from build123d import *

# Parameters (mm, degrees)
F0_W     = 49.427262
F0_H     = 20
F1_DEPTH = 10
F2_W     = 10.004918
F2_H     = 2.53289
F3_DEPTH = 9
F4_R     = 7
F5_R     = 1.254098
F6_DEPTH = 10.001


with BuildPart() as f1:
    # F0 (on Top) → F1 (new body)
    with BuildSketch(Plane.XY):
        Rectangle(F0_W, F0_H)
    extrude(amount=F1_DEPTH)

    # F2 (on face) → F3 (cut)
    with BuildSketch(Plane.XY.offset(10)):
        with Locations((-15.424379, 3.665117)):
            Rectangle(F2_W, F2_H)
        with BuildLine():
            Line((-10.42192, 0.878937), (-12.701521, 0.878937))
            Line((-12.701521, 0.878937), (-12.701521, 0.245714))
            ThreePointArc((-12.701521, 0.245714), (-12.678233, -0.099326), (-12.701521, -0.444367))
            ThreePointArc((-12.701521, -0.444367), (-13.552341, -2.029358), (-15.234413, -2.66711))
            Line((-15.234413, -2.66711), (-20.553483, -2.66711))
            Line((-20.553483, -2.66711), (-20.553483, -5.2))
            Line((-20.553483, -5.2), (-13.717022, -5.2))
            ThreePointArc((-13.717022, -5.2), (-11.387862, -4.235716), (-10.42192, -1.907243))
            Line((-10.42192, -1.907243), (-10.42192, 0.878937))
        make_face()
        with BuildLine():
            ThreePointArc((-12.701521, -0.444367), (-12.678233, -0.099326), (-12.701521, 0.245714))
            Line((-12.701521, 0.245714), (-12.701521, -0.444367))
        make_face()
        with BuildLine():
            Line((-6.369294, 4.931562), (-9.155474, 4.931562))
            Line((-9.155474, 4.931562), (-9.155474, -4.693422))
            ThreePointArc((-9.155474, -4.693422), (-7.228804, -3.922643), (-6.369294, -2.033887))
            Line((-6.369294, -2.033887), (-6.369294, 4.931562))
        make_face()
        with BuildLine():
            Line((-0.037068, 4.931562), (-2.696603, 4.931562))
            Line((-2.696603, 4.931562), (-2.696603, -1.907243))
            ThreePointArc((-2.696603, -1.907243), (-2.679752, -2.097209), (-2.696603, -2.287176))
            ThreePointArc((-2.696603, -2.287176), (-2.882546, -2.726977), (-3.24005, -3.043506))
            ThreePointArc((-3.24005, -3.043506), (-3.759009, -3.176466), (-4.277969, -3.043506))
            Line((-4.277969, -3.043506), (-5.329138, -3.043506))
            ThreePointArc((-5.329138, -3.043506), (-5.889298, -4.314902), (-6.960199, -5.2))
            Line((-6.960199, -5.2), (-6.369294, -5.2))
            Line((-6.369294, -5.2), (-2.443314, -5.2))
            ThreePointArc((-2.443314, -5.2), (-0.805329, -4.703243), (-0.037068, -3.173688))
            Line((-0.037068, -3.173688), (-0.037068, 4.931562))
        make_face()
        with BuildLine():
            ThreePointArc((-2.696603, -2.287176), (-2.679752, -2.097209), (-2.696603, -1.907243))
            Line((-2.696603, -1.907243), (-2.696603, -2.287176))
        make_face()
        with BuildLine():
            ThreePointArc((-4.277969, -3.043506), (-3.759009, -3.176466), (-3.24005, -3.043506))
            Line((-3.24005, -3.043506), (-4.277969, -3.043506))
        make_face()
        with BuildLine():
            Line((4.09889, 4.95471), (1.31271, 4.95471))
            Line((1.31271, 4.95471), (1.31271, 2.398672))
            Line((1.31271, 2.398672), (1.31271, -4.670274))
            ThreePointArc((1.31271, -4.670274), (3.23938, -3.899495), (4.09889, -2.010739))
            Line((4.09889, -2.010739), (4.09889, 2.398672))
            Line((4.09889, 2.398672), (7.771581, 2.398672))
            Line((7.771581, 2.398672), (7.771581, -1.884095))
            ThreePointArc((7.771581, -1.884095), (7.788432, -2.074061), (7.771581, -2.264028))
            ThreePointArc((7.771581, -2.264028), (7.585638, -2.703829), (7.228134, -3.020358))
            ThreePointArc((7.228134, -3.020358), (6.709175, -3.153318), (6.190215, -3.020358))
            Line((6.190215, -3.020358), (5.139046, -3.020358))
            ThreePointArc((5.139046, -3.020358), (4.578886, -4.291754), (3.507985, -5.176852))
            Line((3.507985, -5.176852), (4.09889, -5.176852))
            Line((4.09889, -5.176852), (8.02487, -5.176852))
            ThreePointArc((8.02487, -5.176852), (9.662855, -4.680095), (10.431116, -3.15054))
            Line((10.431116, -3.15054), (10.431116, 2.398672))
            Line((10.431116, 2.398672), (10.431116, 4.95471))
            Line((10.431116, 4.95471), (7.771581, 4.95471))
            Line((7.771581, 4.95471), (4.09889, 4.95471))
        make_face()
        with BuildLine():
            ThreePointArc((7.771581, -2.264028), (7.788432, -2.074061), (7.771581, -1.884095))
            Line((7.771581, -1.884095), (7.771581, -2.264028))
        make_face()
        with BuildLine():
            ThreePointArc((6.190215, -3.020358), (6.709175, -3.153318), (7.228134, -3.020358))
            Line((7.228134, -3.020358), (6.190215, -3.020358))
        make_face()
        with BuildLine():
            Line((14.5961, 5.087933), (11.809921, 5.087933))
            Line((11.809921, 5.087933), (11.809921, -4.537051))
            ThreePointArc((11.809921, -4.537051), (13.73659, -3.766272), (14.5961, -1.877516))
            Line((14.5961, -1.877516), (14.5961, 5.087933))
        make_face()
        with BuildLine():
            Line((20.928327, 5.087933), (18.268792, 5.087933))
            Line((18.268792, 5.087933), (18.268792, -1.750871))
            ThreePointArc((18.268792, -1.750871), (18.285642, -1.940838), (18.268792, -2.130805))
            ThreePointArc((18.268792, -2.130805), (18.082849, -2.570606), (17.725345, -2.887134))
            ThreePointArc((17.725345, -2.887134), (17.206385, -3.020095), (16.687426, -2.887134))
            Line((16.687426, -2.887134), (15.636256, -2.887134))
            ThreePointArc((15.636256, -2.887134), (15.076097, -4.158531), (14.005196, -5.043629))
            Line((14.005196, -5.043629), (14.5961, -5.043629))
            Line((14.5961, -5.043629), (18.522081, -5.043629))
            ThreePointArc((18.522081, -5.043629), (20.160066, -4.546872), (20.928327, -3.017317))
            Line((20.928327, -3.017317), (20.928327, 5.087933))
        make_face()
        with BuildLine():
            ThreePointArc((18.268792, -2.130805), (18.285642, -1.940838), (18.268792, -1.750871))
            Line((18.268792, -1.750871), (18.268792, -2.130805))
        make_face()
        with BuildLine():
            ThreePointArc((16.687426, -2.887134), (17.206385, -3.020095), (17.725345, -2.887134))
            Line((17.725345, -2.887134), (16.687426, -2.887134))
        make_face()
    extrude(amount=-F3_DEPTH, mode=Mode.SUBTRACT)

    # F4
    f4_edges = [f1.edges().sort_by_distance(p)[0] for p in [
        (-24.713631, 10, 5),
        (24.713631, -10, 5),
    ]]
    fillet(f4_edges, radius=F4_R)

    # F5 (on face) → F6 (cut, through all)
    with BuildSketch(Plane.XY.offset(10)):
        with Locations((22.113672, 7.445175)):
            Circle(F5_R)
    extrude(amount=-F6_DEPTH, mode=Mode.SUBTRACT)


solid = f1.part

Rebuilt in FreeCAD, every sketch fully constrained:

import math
import FreeCAD as App
import Part
import Sketcher

V = App.Vector
Q = App.Units.Quantity


def edges_at(feature, points):
    """Names of the edges that pass closest to the given points."""
    edges = feature.Shape.Edges
    near = lambda p: min(range(len(edges)), key=lambda i: edges[i].distToShape(Part.Vertex(*p))[0])
    return sorted({f"Edge{near(p) + 1}" for p in points})

doc = App.newDocument("Part")
body = doc.addObject("PartDesign::Body", "Body")

# Sketch on XY plane
sketch1 = body.newObject("Sketcher::SketchObject", "Sketch")
sketch1.AttachmentSupport = (doc.getObject("XY_Plane"), [""])
sketch1.MapMode = "FlatFace"
sketch1.addGeometry(Part.LineSegment(V(-24.713631, 10, 0), V(-24.713631, -10, 0)), False)
sketch1.addGeometry(Part.LineSegment(V(-24.713631, -10, 0), V(24.713631, -10, 0)), False)
sketch1.addGeometry(Part.LineSegment(V(24.713631, -10, 0), V(24.713631, 10, 0)), False)
sketch1.addGeometry(Part.LineSegment(V(24.713631, 10, 0), V(-24.713631, 10, 0)), False)
sketch1.addConstraint(Sketcher.Constraint("Coincident", 0, 2, 1, 1))
sketch1.addConstraint(Sketcher.Constraint("Coincident", 1, 2, 2, 1))
sketch1.addConstraint(Sketcher.Constraint("Coincident", 2, 2, 3, 1))
sketch1.addConstraint(Sketcher.Constraint("Coincident", 3, 2, 0, 1))
sketch1.addConstraint(Sketcher.Constraint("Vertical", 0))
sketch1.addConstraint(Sketcher.Constraint("Horizontal", 1))
sketch1.addConstraint(Sketcher.Constraint("Vertical", 2))
sketch1.addConstraint(Sketcher.Constraint("Horizontal", 3))
sketch1.addConstraint(Sketcher.Constraint("Symmetric", 0, 2, 2, 2, -1, 1))
sketch1.addConstraint(Sketcher.Constraint("DistanceY", 0, 2, 0, 1, Q("20 mm")))
sketch1.addConstraint(Sketcher.Constraint("DistanceX", 1, 1, 1, 2, Q("49.427262 mm")))
pad1 = body.newObject("PartDesign::Pad", "Pad")
pad1.Profile = sketch1
pad1.Length = 10

# Sketch on XY plane
sketch2 = body.newObject("Sketcher::SketchObject", "Sketch001")
sketch2.AttachmentSupport = (doc.getObject("XY_Plane"), [""])
sketch2.MapMode = "FlatFace"
sketch2.AttachmentOffset = App.Placement(V(0, 0, 10), App.Rotation())
sketch2.addGeometry(Part.LineSegment(V(-20.426838, 4.931562, 0), V(-20.426838, 2.398672, 0)), False)
sketch2.addGeometry(Part.LineSegment(V(-20.426838, 2.398672, 0), V(-10.42192, 2.398672, 0)), False)
sketch2.addGeometry(Part.LineSegment(V(-10.42192, 2.398672, 0), V(-10.42192, 4.931562, 0)), False)
sketch2.addGeometry(Part.LineSegment(V(-10.42192, 4.931562, 0), V(-20.426838, 4.931562, 0)), False)
sketch2.addGeometry(Part.LineSegment(V(-10.42192, 0.878937, 0), V(-12.701521, 0.878937, 0)), False)
sketch2.addGeometry(Part.LineSegment(V(-12.701521, 0.878937, 0), V(-12.701521, -0.444367, 0)), False)
sketch2.addGeometry(Part.ArcOfCircle(Part.Circle(V(-15.246042, -0.099328, 0), V(0, 0, 1), 2.567809), math.radians(-89.740513), math.radians(-7.722254)), False)
sketch2.addGeometry(Part.LineSegment(V(-15.234413, -2.66711, 0), V(-20.553483, -2.66711, 0)), False)
sketch2.addGeometry(Part.LineSegment(V(-20.553483, -2.66711, 0), V(-20.553483, -5.2, 0)), False)
sketch2.addGeometry(Part.LineSegment(V(-20.553483, -5.2, 0), V(-13.717022, -5.2, 0)), False)
sketch2.addGeometry(Part.ArcOfCircle(Part.Circle(V(-13.717022, -1.904897, 0), V(0, 0, 1), 3.295103), math.radians(-90), math.radians(-0.040789)), False)
sketch2.addGeometry(Part.LineSegment(V(-10.42192, -1.907243, 0), V(-10.42192, 0.878937, 0)), False)
sketch2.addGeometry(Part.LineSegment(V(-6.369294, 4.931562, 0), V(-9.155474, 4.931562, 0)), False)
sketch2.addGeometry(Part.LineSegment(V(-9.155474, 4.931562, 0), V(-9.155474, -4.693422, 0)), False)
sketch2.addGeometry(Part.ArcOfCircle(Part.Circle(V(-9.152592, -1.907246, 0), V(0, 0, 1), 2.786178), math.radians(-90.059267), math.radians(-2.605182)), False)
sketch2.addGeometry(Part.LineSegment(V(-6.369294, -2.033887, 0), V(-6.369294, 4.931562, 0)), False)
sketch2.addGeometry(Part.LineSegment(V(-0.037068, 4.931562, 0), V(-2.696603, 4.931562, 0)), False)
sketch2.addGeometry(Part.LineSegment(V(-2.696603, 4.931562, 0), V(-2.696603, -2.287176, 0)), False)
sketch2.addGeometry(Part.ArcOfCircle(Part.Circle(V(-3.75901, -2.09721, 0), V(0, 0, 1), 1.079257), math.radians(-61.25911), math.radians(-10.137769)), False)
sketch2.addGeometry(Part.LineSegment(V(-3.24005, -3.043506, 0), V(-5.329138, -3.043506, 0)), False)
sketch2.addGeometry(Part.ArcOfCircle(Part.Circle(V(-8.293317, -2.496626, 0), V(0, 0, 1), 3.014205), math.radians(-63.750661), math.radians(-10.453308)), False)
sketch2.addGeometry(Part.LineSegment(V(-6.960199, -5.2, 0), V(-2.443314, -5.2, 0)), False)
sketch2.addGeometry(Part.ArcOfCircle(Part.Circle(V(-2.203002, -3.043506, 0), V(0, 0, 1), 2.169843), math.radians(-96.358605), math.radians(-3.439591)), False)
sketch2.addGeometry(Part.LineSegment(V(-0.037068, -3.173688, 0), V(-0.037068, 4.931562, 0)), False)
sketch2.addGeometry(Part.LineSegment(V(1.31271, 4.95471, 0), V(1.31271, -4.670274, 0)), False)
sketch2.addGeometry(Part.ArcOfCircle(Part.Circle(V(1.315592, -1.884098, 0), V(0, 0, 1), 2.786178), math.radians(-90.059267), math.radians(-2.605182)), False)
sketch2.addGeometry(Part.LineSegment(V(4.09889, -2.010739, 0), V(4.09889, 2.398672, 0)), False)
sketch2.addGeometry(Part.LineSegment(V(4.09889, 2.398672, 0), V(7.771581, 2.398672, 0)), False)
sketch2.addGeometry(Part.LineSegment(V(7.771581, 2.398672, 0), V(7.771581, -2.264028, 0)), False)
sketch2.addGeometry(Part.ArcOfCircle(Part.Circle(V(6.709174, -2.074062, 0), V(0, 0, 1), 1.079257), math.radians(-61.25911), math.radians(-10.137769)), False)
sketch2.addGeometry(Part.LineSegment(V(7.228134, -3.020358, 0), V(5.139046, -3.020358, 0)), False)
sketch2.addGeometry(Part.ArcOfCircle(Part.Circle(V(2.174867, -2.473478, 0), V(0, 0, 1), 3.014205), math.radians(-63.750661), math.radians(-10.453308)), False)
sketch2.addGeometry(Part.LineSegment(V(3.507985, -5.176852, 0), V(8.02487, -5.176852, 0)), False)
sketch2.addGeometry(Part.ArcOfCircle(Part.Circle(V(8.265182, -3.020358, 0), V(0, 0, 1), 2.169843), math.radians(-96.358605), math.radians(-3.439591)), False)
sketch2.addGeometry(Part.LineSegment(V(10.431116, -3.15054, 0), V(10.431116, 4.95471, 0)), False)
sketch2.addGeometry(Part.LineSegment(V(10.431116, 4.95471, 0), V(1.31271, 4.95471, 0)), False)
sketch2.addGeometry(Part.LineSegment(V(14.5961, 5.087933, 0), V(11.809921, 5.087933, 0)), False)
sketch2.addGeometry(Part.LineSegment(V(11.809921, 5.087933, 0), V(11.809921, -4.537051, 0)), False)
sketch2.addGeometry(Part.ArcOfCircle(Part.Circle(V(11.812802, -1.750875, 0), V(0, 0, 1), 2.786178), math.radians(-90.059247), math.radians(-2.605182)), False)
sketch2.addGeometry(Part.LineSegment(V(14.5961, -1.877516, 0), V(14.5961, 5.087933, 0)), False)
sketch2.addGeometry(Part.LineSegment(V(20.928327, 5.087933, 0), V(18.268792, 5.087933, 0)), False)
sketch2.addGeometry(Part.LineSegment(V(18.268792, 5.087933, 0), V(18.268792, -2.130805, 0)), False)
sketch2.addGeometry(Part.ArcOfCircle(Part.Circle(V(17.206389, -1.940841, 0), V(0, 0, 1), 1.079253), math.radians(-61.259236), math.radians(-10.137715)), False)
sketch2.addGeometry(Part.LineSegment(V(17.725345, -2.887134, 0), V(15.636256, -2.887134, 0)), False)
sketch2.addGeometry(Part.ArcOfCircle(Part.Circle(V(12.672082, -2.34026, 0), V(0, 0, 1), 3.0142), math.radians(-63.750685), math.radians(-10.453223)), False)
sketch2.addGeometry(Part.LineSegment(V(14.005196, -5.043629, 0), V(18.522081, -5.043629, 0)), False)
sketch2.addGeometry(Part.ArcOfCircle(Part.Circle(V(18.762393, -2.887135, 0), V(0, 0, 1), 2.169843), math.radians(-96.358605), math.radians(-3.439591)), False)
sketch2.addGeometry(Part.LineSegment(V(20.928327, -3.017317, 0), V(20.928327, 5.087933, 0)), False)
sketch2.addConstraint(Sketcher.Constraint("Coincident", 0, 2, 1, 1))
sketch2.addConstraint(Sketcher.Constraint("Coincident", 1, 2, 2, 1))
sketch2.addConstraint(Sketcher.Constraint("Coincident", 2, 2, 3, 1))
sketch2.addConstraint(Sketcher.Constraint("Coincident", 3, 2, 0, 1))
sketch2.addConstraint(Sketcher.Constraint("Coincident", 4, 2, 5, 1))
sketch2.addConstraint(Sketcher.Constraint("Coincident", 5, 2, 6, 2))
sketch2.addConstraint(Sketcher.Constraint("Coincident", 6, 1, 7, 1))
sketch2.addConstraint(Sketcher.Constraint("Coincident", 7, 2, 8, 1))
sketch2.addConstraint(Sketcher.Constraint("Coincident", 8, 2, 9, 1))
sketch2.addConstraint(Sketcher.Constraint("Tangent", 9, 2, 10, 1))
sketch2.addConstraint(Sketcher.Constraint("Coincident", 10, 2, 11, 1))
sketch2.addConstraint(Sketcher.Constraint("Coincident", 11, 2, 4, 1))
sketch2.addConstraint(Sketcher.Constraint("Coincident", 12, 2, 13, 1))
sketch2.addConstraint(Sketcher.Constraint("Coincident", 13, 2, 14, 1))
sketch2.addConstraint(Sketcher.Constraint("Coincident", 14, 2, 15, 1))
sketch2.addConstraint(Sketcher.Constraint("Coincident", 15, 2, 12, 1))
sketch2.addConstraint(Sketcher.Constraint("Coincident", 16, 2, 17, 1))
sketch2.addConstraint(Sketcher.Constraint("Coincident", 17, 2, 18, 2))
sketch2.addConstraint(Sketcher.Constraint("Coincident", 18, 1, 19, 1))
sketch2.addConstraint(Sketcher.Constraint("Coincident", 19, 2, 20, 2))
sketch2.addConstraint(Sketcher.Constraint("Coincident", 20, 1, 21, 1))
sketch2.addConstraint(Sketcher.Constraint("Coincident", 21, 2, 22, 1))
sketch2.addConstraint(Sketcher.Constraint("Coincident", 22, 2, 23, 1))
sketch2.addConstraint(Sketcher.Constraint("Coincident", 23, 2, 16, 1))
sketch2.addConstraint(Sketcher.Constraint("Coincident", 24, 2, 25, 1))
sketch2.addConstraint(Sketcher.Constraint("Coincident", 25, 2, 26, 1))
sketch2.addConstraint(Sketcher.Constraint("Coincident", 26, 2, 27, 1))
sketch2.addConstraint(Sketcher.Constraint("Coincident", 27, 2, 28, 1))
sketch2.addConstraint(Sketcher.Constraint("Coincident", 28, 2, 29, 2))
sketch2.addConstraint(Sketcher.Constraint("Coincident", 29, 1, 30, 1))
sketch2.addConstraint(Sketcher.Constraint("Coincident", 30, 2, 31, 2))
sketch2.addConstraint(Sketcher.Constraint("Coincident", 31, 1, 32, 1))
sketch2.addConstraint(Sketcher.Constraint("Coincident", 32, 2, 33, 1))
sketch2.addConstraint(Sketcher.Constraint("Coincident", 33, 2, 34, 1))
sketch2.addConstraint(Sketcher.Constraint("Coincident", 34, 2, 35, 1))
sketch2.addConstraint(Sketcher.Constraint("Coincident", 35, 2, 24, 1))
sketch2.addConstraint(Sketcher.Constraint("Coincident", 36, 2, 37, 1))
sketch2.addConstraint(Sketcher.Constraint("Coincident", 37, 2, 38, 1))
sketch2.addConstraint(Sketcher.Constraint("Coincident", 38, 2, 39, 1))
sketch2.addConstraint(Sketcher.Constraint("Coincident", 39, 2, 36, 1))
sketch2.addConstraint(Sketcher.Constraint("Coincident", 40, 2, 41, 1))
sketch2.addConstraint(Sketcher.Constraint("Coincident", 41, 2, 42, 2))
sketch2.addConstraint(Sketcher.Constraint("Coincident", 42, 1, 43, 1))
sketch2.addConstraint(Sketcher.Constraint("Coincident", 43, 2, 44, 2))
sketch2.addConstraint(Sketcher.Constraint("Coincident", 44, 1, 45, 1))
sketch2.addConstraint(Sketcher.Constraint("Coincident", 45, 2, 46, 1))
sketch2.addConstraint(Sketcher.Constraint("Coincident", 46, 2, 47, 1))
sketch2.addConstraint(Sketcher.Constraint("Coincident", 47, 2, 40, 1))
sketch2.addConstraint(Sketcher.Constraint("Vertical", 0))
sketch2.addConstraint(Sketcher.Constraint("Horizontal", 1))
sketch2.addConstraint(Sketcher.Constraint("Vertical", 2))
sketch2.addConstraint(Sketcher.Constraint("Horizontal", 3))
sketch2.addConstraint(Sketcher.Constraint("Horizontal", 4))
sketch2.addConstraint(Sketcher.Constraint("Vertical", 5))
sketch2.addConstraint(Sketcher.Constraint("Horizontal", 7))
sketch2.addConstraint(Sketcher.Constraint("Vertical", 8))
sketch2.addConstraint(Sketcher.Constraint("Horizontal", 9))
sketch2.addConstraint(Sketcher.Constraint("Vertical", 11))
sketch2.addConstraint(Sketcher.Constraint("Horizontal", 12))
sketch2.addConstraint(Sketcher.Constraint("Vertical", 13))
sketch2.addConstraint(Sketcher.Constraint("Vertical", 15))
sketch2.addConstraint(Sketcher.Constraint("Horizontal", 16))
sketch2.addConstraint(Sketcher.Constraint("Vertical", 17))
sketch2.addConstraint(Sketcher.Constraint("Horizontal", 19))
sketch2.addConstraint(Sketcher.Constraint("Horizontal", 21))
sketch2.addConstraint(Sketcher.Constraint("Vertical", 23))
sketch2.addConstraint(Sketcher.Constraint("Vertical", 24))
sketch2.addConstraint(Sketcher.Constraint("Vertical", 26))
sketch2.addConstraint(Sketcher.Constraint("Horizontal", 27))
sketch2.addConstraint(Sketcher.Constraint("Vertical", 28))
sketch2.addConstraint(Sketcher.Constraint("Horizontal", 30))
sketch2.addConstraint(Sketcher.Constraint("Horizontal", 32))
sketch2.addConstraint(Sketcher.Constraint("Vertical", 34))
sketch2.addConstraint(Sketcher.Constraint("Horizontal", 35))
sketch2.addConstraint(Sketcher.Constraint("Horizontal", 36))
sketch2.addConstraint(Sketcher.Constraint("Vertical", 37))
sketch2.addConstraint(Sketcher.Constraint("Vertical", 39))
sketch2.addConstraint(Sketcher.Constraint("Horizontal", 40))
sketch2.addConstraint(Sketcher.Constraint("Vertical", 41))
sketch2.addConstraint(Sketcher.Constraint("Horizontal", 43))
sketch2.addConstraint(Sketcher.Constraint("Horizontal", 45))
sketch2.addConstraint(Sketcher.Constraint("Vertical", 47))
sketch2.addConstraint(Sketcher.Constraint("Equal", 14, 25))
sketch2.addConstraint(Sketcher.Constraint("Equal", 18, 29))
sketch2.addConstraint(Sketcher.Constraint("Equal", 20, 31))
sketch2.addConstraint(Sketcher.Constraint("Equal", 22, 33))
sketch2.addConstraint(Sketcher.Constraint("Equal", 25, 38))
sketch2.addConstraint(Sketcher.Constraint("Equal", 33, 46))
sketch2.addConstraint(Sketcher.Constraint("Horizontal", 3, 2, 12, 2))
sketch2.addConstraint(Sketcher.Constraint("Horizontal", 15, 2, 16, 2))
sketch2.addConstraint(Sketcher.Constraint("Horizontal", 22, 3, 18, 1))
sketch2.addConstraint(Sketcher.Constraint("Horizontal", 9, 2, 20, 1))
sketch2.addConstraint(Sketcher.Constraint("Horizontal", 1, 2, 26, 2))
sketch2.addConstraint(Sketcher.Constraint("Horizontal", 33, 3, 29, 1))
sketch2.addConstraint(Sketcher.Constraint("Horizontal", 39, 2, 40, 2))
sketch2.addConstraint(Sketcher.Constraint("Horizontal", 46, 3, 42, 1))
sketch2.addConstraint(Sketcher.Constraint("Vertical", 2, 2, 10, 2))
sketch2.addConstraint(Sketcher.Constraint("Equal", 19, 30))
sketch2.addConstraint(Sketcher.Constraint("Equal", 21, 32))
sketch2.addConstraint(Sketcher.Constraint("Equal", 12, 36))
sketch2.addConstraint(Sketcher.Constraint("Equal", 16, 40))
sketch2.addConstraint(Sketcher.Constraint("Equal", 30, 43))
sketch2.addConstraint(Sketcher.Constraint("Equal", 32, 45))
sketch2.addConstraint(Sketcher.Constraint("Equal", 2, 8))
sketch2.addConstraint(Sketcher.Constraint("Equal", 36, 11))
sketch2.addConstraint(Sketcher.Constraint("Equal", 13, 24))
sketch2.addConstraint(Sketcher.Constraint("Equal", 23, 34))
sketch2.addConstraint(Sketcher.Constraint("Equal", 24, 37))
sketch2.addConstraint(Sketcher.Constraint("Equal", 15, 39))
sketch2.addConstraint(Sketcher.Constraint("Equal", 17, 41))
sketch2.addConstraint(Sketcher.Constraint("Equal", 34, 47))
sketch2.addConstraint(Sketcher.Constraint("DistanceY", 8, 2, -1, 1, Q("5.2 mm")))
sketch2.addConstraint(Sketcher.Constraint("Radius", 44, Q("3.0142 mm")))
sketch2.addConstraint(Sketcher.Constraint("Radius", 6, Q("2.567809 mm")))
sketch2.addConstraint(Sketcher.Constraint("DistanceX", 4, 2, 4, 1, Q("2.279601 mm")))
sketch2.addConstraint(Sketcher.Constraint("DistanceY", 28, 2, 28, 1, Q("4.6627 mm")))
sketch2.addConstraint(Sketcher.Constraint("DistanceX", 22, 3, -1, 1, Q("2.203002 mm")))
sketch2.addConstraint(Sketcher.Constraint("Radius", 10, Q("3.295103 mm")))
sketch2.addConstraint(Sketcher.Constraint("Radius", 14, Q("2.786178 mm")))
sketch2.addConstraint(Sketcher.Constraint("Radius", 18, Q("1.079257 mm")))
sketch2.addConstraint(Sketcher.Constraint("Radius", 20, Q("3.014205 mm")))
sketch2.addConstraint(Sketcher.Constraint("Radius", 22, Q("2.169843 mm")))
sketch2.addConstraint(Sketcher.Constraint("Radius", 42, Q("1.079253 mm")))
sketch2.addConstraint(Sketcher.Constraint("DistanceX", 7, 2, 7, 1, Q("5.31907 mm")))
sketch2.addConstraint(Sketcher.Constraint("DistanceX", 9, 1, 9, 2, Q("6.836461 mm")))
sketch2.addConstraint(Sketcher.Constraint("DistanceX", 12, 2, 12, 1, Q("2.78618 mm")))
sketch2.addConstraint(Sketcher.Constraint("DistanceX", 19, 2, 19, 1, Q("2.089088 mm")))
sketch2.addConstraint(Sketcher.Constraint("DistanceX", 27, 1, 27, 2, Q("3.672691 mm")))
sketch2.addConstraint(Sketcher.Constraint("DistanceY", 0, 2, 0, 1, Q("2.53289 mm")))
sketch2.addConstraint(Sketcher.Constraint("DistanceY", 15, 1, 15, 2, Q("6.965449 mm")))
sketch2.addConstraint(Sketcher.Constraint("DistanceY", 23, 1, 23, 2, Q("8.10525 mm")))
sketch2.addConstraint(Sketcher.Constraint("DistanceY", 26, 1, 26, 2, Q("4.409411 mm")))
sketch2.addConstraint(Sketcher.Constraint("DistanceX", 20, 1, -1, 1, Q("6.960199 mm")))
sketch2.addConstraint(Sketcher.Constraint("DistanceX", -1, 1, 38, 2, Q("14.5961 mm")))
sketch2.addConstraint(Sketcher.Constraint("DistanceX", 1, 1, 1, 2, Q("10.004918 mm")))
sketch2.addConstraint(Sketcher.Constraint("DistanceX", 16, 2, 16, 1, Q("2.659535 mm")))
sketch2.addConstraint(Sketcher.Constraint("DistanceX", 21, 1, 21, 2, Q("4.516885 mm")))
sketch2.addConstraint(Sketcher.Constraint("DistanceX", 35, 2, 35, 1, Q("9.118406 mm")))
sketch2.addConstraint(Sketcher.Constraint("DistanceY", 5, 2, 5, 1, Q("1.323304 mm")))
sketch2.addConstraint(Sketcher.Constraint("DistanceY", 13, 2, 13, 1, Q("9.624984 mm")))
sketch2.addConstraint(Sketcher.Constraint("DistanceY", 17, 2, 17, 1, Q("7.218738 mm")))
sketch2.addConstraint(Sketcher.Constraint("DistanceX", 10, 3, -1, 1, Q("13.717022 mm")))
sketch2.addConstraint(Sketcher.Constraint("DistanceX", 14, 3, -1, 1, Q("9.152592 mm")))
sketch2.addConstraint(Sketcher.Constraint("DistanceX", 18, 3, -1, 1, Q("3.75901 mm")))
sketch2.addConstraint(Sketcher.Constraint("DistanceY", 18, 3, -1, 1, Q("2.09721 mm")))
sketch2.addConstraint(Sketcher.Constraint("DistanceY", 29, 3, -1, 1, Q("2.074062 mm")))
sketch2.addConstraint(Sketcher.Constraint("DistanceY", 31, 3, -1, 1, Q("2.473478 mm")))
sketch2.addConstraint(Sketcher.Constraint("DistanceX", -1, 1, 42, 3, Q("17.206389 mm")))
sketch2.addConstraint(Sketcher.Constraint("DistanceY", 42, 3, -1, 1, Q("1.940841 mm")))
sketch2.addConstraint(Sketcher.Constraint("DistanceX", -1, 1, 44, 3, Q("12.672082 mm")))
sketch2.addConstraint(Sketcher.Constraint("DistanceY", 44, 3, -1, 1, Q("2.34026 mm")))
sketch2.addConstraint(Sketcher.Constraint("DistanceX", -1, 1, 24, 2, Q("1.31271 mm")))
sketch2.addConstraint(Sketcher.Constraint("DistanceX", -1, 1, 25, 2, Q("4.09889 mm")))
sketch2.addConstraint(Sketcher.Constraint("DistanceX", -1, 1, 32, 2, Q("8.02487 mm")))
sketch2.addConstraint(Sketcher.Constraint("DistanceY", 33, 2, -1, 1, Q("3.15054 mm")))
sketch2.addConstraint(Sketcher.Constraint("DistanceY", 37, 2, -1, 1, Q("4.537051 mm")))
sketch2.addConstraint(Sketcher.Constraint("DistanceX", 6, 3, -1, 1, Q("15.246042 mm")))
pocket1 = body.newObject("PartDesign::Pocket", "Pocket")
pocket1.Profile = sketch2
pocket1.Length = 9
doc.recompute()

fillet = body.newObject("PartDesign::Fillet", "Fillet")
fillet.Base = (pocket1, edges_at(pocket1, [(-24.714, 10, 5), (24.714, -10, 5)]))
fillet.Radius = 7

# Sketch on XY plane
sketch3 = body.newObject("Sketcher::SketchObject", "Sketch002")
sketch3.AttachmentSupport = (doc.getObject("XY_Plane"), [""])
sketch3.MapMode = "FlatFace"
sketch3.AttachmentOffset = App.Placement(V(0, 0, 10), App.Rotation())
sketch3.addGeometry(Part.Circle(V(22.113672, 7.445175, 0), V(0, 0, 1), 1.254098), False)
sketch3.addConstraint(Sketcher.Constraint("Diameter", 0, Q("2.508196 mm")))
sketch3.addConstraint(Sketcher.Constraint("DistanceX", -1, 1, 0, 3, Q("22.113672 mm")))
sketch3.addConstraint(Sketcher.Constraint("DistanceY", -1, 1, 0, 3, Q("7.445175 mm")))
pocket2 = body.newObject("PartDesign::Pocket", "Pocket001")
pocket2.Profile = sketch3
pocket2.Type = "ThroughAll"

doc.recompute()
